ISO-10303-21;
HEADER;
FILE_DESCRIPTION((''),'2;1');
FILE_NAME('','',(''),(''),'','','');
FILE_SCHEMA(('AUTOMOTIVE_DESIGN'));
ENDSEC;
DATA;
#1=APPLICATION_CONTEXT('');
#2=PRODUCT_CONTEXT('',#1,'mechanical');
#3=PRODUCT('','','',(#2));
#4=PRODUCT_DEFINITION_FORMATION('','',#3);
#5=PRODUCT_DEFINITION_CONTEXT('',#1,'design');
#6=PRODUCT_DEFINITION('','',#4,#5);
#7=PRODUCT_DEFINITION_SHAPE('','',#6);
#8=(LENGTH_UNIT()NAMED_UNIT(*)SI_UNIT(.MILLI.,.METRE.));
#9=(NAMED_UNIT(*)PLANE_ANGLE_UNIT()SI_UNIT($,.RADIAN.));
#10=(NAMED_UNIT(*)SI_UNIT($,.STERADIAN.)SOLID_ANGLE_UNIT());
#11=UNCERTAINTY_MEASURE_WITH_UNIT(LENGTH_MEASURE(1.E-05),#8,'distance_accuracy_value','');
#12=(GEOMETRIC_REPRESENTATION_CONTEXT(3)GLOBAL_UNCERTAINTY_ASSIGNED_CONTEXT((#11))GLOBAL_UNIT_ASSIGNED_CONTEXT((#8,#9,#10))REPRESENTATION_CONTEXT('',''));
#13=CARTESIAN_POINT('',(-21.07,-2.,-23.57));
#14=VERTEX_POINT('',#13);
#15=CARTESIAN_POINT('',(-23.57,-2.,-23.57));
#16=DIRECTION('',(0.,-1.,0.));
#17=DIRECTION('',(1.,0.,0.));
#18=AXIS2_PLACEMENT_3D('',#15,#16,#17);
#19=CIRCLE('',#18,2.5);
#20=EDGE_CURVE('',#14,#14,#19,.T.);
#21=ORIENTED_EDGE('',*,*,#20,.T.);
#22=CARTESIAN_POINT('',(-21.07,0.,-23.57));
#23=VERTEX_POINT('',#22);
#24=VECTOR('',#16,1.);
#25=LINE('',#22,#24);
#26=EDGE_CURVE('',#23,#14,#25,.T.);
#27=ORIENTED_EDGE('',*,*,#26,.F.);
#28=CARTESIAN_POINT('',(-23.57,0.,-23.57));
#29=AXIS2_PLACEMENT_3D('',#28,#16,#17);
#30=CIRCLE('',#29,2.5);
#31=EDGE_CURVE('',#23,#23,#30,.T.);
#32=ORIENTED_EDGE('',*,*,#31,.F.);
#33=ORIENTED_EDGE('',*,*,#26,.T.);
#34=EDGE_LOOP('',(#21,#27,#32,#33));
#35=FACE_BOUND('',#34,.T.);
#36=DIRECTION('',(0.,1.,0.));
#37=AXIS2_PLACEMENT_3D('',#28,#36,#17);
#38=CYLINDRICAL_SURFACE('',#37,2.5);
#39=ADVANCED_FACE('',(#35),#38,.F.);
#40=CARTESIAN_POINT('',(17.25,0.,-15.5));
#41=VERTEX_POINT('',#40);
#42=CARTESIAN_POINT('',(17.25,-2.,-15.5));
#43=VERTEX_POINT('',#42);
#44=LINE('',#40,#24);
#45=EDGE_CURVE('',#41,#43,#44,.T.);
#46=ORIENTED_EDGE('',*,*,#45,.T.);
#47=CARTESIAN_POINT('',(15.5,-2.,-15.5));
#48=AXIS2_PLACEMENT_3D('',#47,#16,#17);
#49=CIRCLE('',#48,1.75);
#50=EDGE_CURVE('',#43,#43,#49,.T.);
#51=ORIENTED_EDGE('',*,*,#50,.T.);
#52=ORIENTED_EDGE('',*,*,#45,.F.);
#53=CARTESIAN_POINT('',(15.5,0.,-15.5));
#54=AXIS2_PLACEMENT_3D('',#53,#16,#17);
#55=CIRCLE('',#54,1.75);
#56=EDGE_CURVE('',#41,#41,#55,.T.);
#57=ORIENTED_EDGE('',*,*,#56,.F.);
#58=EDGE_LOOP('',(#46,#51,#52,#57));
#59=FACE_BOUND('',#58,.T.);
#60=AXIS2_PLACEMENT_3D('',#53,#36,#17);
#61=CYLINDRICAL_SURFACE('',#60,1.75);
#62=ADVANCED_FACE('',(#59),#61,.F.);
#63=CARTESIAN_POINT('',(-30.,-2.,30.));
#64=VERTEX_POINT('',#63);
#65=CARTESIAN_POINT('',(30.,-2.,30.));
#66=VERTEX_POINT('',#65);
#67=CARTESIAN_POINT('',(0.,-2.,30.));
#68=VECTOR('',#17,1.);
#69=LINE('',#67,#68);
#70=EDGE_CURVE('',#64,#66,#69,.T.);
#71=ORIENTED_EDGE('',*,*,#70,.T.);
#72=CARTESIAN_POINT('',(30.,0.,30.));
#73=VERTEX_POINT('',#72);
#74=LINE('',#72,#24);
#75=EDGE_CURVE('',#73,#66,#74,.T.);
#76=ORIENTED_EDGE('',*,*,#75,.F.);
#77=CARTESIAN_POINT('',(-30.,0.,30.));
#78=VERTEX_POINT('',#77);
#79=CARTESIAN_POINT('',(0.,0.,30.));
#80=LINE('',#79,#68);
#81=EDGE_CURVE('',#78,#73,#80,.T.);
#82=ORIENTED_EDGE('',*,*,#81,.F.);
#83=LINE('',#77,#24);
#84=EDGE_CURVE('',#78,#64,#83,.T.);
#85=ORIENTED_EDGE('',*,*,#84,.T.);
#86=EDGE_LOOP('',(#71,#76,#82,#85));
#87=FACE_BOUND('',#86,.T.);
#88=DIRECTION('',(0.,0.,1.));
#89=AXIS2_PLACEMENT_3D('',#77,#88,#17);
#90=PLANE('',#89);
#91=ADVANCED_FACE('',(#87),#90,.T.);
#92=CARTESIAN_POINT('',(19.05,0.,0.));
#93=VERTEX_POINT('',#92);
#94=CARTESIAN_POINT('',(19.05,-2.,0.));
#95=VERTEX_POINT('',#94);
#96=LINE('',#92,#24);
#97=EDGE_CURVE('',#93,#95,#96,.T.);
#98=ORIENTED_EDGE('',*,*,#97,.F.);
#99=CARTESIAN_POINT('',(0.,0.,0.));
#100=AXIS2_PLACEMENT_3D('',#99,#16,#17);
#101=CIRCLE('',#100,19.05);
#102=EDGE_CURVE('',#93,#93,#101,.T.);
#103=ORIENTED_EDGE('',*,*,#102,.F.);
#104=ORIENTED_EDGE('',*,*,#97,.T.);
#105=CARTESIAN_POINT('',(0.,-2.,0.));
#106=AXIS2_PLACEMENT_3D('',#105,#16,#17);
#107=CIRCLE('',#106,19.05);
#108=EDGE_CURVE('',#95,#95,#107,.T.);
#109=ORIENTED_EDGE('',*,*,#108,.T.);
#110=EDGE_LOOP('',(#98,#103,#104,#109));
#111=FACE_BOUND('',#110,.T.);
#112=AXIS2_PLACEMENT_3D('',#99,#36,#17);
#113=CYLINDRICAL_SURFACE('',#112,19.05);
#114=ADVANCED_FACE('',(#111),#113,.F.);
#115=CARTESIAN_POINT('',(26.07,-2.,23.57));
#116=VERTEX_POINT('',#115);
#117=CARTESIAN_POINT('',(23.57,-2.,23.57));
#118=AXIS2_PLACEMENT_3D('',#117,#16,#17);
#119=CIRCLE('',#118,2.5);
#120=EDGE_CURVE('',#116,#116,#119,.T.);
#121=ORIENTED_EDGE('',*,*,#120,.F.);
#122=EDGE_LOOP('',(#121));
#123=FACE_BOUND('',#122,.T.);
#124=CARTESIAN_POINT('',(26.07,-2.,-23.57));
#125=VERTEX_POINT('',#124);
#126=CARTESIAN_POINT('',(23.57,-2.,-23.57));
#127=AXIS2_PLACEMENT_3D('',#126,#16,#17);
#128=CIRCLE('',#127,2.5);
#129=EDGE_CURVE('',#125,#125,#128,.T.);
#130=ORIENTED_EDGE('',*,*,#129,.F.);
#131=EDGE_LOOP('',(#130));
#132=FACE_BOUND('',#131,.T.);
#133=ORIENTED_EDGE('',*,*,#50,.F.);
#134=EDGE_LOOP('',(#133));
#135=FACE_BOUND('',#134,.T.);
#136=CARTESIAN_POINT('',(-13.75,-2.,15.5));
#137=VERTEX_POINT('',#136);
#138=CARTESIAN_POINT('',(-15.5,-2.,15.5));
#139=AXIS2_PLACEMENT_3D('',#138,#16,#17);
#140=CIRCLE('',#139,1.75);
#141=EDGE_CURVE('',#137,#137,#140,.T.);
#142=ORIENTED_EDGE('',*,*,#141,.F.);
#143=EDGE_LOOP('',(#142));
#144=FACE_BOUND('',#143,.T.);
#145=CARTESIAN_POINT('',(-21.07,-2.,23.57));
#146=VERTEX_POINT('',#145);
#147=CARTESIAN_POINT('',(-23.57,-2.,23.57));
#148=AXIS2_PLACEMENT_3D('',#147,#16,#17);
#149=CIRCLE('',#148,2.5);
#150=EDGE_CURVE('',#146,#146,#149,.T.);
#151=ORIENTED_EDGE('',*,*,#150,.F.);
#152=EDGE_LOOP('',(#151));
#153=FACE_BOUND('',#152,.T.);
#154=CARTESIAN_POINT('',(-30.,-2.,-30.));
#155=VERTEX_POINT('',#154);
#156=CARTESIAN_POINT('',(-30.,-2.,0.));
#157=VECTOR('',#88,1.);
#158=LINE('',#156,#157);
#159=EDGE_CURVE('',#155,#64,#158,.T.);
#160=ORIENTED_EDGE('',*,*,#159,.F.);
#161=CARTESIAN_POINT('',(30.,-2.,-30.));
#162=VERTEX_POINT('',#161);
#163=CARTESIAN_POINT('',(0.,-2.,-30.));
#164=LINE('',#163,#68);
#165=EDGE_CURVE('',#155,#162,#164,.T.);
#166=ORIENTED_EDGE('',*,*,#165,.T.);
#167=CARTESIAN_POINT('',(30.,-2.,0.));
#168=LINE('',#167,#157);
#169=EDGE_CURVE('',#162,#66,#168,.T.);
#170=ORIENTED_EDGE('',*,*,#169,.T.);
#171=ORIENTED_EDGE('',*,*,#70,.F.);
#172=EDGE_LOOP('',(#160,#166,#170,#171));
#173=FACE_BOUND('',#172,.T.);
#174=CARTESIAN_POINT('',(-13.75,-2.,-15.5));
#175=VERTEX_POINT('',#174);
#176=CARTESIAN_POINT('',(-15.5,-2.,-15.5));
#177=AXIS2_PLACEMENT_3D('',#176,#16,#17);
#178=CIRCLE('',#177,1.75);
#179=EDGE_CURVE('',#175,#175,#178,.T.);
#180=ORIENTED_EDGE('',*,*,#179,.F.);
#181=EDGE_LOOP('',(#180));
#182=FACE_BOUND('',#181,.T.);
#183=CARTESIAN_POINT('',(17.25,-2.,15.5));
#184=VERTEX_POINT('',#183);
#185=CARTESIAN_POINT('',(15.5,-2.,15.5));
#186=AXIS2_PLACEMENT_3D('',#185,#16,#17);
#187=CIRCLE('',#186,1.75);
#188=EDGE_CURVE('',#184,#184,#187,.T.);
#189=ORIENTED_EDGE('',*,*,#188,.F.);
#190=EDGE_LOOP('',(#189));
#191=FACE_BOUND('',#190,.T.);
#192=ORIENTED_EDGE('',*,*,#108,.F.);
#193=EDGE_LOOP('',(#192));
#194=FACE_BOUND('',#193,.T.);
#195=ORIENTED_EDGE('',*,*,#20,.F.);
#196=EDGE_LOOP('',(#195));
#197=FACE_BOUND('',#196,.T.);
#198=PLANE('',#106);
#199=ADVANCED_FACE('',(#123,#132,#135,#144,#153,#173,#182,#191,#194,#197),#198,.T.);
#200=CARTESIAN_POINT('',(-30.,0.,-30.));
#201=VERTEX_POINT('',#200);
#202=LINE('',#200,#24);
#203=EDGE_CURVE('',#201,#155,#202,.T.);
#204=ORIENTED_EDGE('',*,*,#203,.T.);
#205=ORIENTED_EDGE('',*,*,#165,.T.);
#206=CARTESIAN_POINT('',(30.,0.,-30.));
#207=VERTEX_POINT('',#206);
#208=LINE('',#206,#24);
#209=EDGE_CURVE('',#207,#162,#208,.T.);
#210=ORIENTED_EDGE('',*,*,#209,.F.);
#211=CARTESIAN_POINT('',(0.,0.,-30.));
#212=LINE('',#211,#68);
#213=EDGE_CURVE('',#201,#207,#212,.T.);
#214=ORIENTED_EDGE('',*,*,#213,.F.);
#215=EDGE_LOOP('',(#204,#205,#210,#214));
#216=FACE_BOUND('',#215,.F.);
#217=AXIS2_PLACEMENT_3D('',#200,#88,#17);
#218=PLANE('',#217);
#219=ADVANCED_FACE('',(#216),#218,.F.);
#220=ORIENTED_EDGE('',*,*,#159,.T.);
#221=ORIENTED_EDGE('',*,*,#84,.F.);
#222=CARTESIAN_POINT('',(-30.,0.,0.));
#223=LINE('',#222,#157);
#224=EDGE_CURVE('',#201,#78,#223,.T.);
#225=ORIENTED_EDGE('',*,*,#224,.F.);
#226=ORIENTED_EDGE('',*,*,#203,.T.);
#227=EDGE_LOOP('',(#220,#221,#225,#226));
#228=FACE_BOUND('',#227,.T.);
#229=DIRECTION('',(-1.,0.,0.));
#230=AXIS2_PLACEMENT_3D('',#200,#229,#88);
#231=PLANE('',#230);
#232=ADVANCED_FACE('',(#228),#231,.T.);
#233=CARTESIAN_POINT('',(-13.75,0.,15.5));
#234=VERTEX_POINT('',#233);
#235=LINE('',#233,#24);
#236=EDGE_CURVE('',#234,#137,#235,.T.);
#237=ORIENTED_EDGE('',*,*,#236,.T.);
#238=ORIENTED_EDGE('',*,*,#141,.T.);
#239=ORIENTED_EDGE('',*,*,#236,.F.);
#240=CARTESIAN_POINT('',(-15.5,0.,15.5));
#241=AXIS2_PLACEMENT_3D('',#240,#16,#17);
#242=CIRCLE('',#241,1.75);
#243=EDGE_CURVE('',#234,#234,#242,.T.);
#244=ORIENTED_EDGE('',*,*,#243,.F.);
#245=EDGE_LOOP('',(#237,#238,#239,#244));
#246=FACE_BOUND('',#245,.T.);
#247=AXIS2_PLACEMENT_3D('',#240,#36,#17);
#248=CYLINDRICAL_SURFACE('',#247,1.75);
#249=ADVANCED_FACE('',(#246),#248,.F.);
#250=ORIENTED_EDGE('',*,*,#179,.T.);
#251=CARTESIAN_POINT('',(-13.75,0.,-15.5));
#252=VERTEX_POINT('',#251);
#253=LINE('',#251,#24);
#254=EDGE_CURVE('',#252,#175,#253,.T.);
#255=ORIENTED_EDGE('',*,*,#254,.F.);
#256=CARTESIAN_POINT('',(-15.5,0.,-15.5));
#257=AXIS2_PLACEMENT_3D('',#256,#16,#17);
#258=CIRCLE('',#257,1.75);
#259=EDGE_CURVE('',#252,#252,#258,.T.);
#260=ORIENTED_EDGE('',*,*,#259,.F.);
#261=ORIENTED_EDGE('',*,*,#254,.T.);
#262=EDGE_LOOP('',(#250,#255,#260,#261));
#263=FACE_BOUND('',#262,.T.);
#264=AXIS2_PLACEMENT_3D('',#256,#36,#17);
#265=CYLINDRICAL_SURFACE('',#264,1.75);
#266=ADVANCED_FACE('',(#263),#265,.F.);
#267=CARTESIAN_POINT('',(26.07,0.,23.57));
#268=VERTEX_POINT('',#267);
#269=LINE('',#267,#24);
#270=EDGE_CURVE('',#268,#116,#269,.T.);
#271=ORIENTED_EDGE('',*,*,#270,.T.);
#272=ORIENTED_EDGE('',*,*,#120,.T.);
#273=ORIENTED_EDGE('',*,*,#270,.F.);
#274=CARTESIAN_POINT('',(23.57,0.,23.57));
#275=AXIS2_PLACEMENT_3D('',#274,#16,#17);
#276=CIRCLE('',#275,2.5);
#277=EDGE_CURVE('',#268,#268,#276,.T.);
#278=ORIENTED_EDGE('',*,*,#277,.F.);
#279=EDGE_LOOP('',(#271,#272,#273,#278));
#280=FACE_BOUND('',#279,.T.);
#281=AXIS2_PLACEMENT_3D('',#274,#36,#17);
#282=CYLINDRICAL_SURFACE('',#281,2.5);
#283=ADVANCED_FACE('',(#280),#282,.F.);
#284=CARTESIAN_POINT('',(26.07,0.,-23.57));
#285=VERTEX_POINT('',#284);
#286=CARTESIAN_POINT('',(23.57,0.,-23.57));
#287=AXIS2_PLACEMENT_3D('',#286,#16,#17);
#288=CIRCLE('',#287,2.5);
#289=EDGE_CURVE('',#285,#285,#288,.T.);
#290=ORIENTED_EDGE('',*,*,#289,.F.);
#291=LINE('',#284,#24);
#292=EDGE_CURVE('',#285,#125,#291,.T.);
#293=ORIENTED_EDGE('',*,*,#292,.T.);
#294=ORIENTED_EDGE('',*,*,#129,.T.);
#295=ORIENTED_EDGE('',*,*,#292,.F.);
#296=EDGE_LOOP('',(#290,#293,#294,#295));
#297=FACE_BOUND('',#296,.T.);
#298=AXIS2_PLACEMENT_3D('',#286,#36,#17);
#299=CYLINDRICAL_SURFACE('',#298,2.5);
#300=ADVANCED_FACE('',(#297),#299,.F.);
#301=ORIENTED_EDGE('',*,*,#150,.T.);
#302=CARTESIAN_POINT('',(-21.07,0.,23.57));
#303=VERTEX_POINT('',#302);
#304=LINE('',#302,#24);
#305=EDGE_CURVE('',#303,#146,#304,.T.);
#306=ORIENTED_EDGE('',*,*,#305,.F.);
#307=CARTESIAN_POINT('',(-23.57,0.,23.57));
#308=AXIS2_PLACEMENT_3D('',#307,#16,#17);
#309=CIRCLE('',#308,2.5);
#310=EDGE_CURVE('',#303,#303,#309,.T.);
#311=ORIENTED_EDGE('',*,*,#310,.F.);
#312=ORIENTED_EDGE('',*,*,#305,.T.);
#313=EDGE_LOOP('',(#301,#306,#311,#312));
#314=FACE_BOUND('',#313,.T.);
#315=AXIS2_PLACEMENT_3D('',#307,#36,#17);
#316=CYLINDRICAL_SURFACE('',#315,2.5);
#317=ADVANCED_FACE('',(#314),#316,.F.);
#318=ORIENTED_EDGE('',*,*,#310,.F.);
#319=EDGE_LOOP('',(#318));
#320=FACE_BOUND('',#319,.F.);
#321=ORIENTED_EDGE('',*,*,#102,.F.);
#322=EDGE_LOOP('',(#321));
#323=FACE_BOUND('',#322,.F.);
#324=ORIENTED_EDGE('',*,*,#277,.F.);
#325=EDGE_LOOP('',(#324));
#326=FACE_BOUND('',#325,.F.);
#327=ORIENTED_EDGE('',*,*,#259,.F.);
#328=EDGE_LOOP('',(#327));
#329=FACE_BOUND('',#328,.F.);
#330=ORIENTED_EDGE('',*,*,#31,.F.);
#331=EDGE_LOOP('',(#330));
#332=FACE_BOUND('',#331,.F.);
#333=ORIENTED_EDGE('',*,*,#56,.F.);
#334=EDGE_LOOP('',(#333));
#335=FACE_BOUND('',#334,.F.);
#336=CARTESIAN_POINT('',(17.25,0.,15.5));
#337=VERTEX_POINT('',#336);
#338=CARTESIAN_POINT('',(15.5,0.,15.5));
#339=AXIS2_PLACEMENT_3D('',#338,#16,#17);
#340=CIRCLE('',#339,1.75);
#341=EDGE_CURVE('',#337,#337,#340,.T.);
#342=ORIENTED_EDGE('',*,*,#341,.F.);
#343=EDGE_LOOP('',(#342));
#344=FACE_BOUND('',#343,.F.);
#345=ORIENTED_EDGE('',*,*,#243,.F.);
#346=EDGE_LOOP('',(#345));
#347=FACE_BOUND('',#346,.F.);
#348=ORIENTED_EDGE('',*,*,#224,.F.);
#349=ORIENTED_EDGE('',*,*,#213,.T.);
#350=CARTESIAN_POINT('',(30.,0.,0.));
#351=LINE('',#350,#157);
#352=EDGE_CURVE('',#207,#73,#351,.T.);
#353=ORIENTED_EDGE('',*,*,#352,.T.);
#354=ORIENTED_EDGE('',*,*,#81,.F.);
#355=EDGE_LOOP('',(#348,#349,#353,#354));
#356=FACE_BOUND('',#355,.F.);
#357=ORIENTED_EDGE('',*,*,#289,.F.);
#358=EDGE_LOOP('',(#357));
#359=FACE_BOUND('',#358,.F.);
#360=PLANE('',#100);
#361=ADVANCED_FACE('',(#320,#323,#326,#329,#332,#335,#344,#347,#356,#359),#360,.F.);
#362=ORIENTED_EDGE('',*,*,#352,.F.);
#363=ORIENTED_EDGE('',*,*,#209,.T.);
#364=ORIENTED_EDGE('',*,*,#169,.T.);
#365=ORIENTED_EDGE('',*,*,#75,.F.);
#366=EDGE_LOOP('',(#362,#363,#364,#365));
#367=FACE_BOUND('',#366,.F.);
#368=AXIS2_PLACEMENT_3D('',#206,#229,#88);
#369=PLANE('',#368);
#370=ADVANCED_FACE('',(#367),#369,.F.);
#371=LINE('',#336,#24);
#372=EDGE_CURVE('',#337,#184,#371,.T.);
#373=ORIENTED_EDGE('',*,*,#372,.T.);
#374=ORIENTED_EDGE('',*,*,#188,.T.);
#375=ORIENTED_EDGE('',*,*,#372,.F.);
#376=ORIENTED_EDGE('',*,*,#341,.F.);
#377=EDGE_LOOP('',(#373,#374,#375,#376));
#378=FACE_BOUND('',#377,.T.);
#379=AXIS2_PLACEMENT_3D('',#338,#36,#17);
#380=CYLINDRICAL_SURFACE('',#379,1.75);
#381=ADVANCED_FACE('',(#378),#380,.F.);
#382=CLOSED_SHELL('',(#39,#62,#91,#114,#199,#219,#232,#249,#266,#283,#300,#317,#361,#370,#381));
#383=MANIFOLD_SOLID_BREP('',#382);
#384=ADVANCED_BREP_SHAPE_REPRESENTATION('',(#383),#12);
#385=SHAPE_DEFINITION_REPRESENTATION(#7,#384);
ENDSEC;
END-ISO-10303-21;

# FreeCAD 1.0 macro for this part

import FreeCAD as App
import Part
import Sketcher

V = App.Vector
Q = App.Units.Quantity

doc = App.newDocument("Part")
body = doc.addObject("PartDesign::Body", "Body")

sketch1 = body.newObject("Sketcher::SketchObject", "Sketch")
sketch1.AttachmentSupport = (doc.getObject("XZ_Plane"), [""])
sketch1.MapMode = "FlatFace"
sketch1.addGeometry(Part.LineSegment(V(-30, 30, 0), V(-30, -30, 0)), False)
sketch1.addGeometry(Part.LineSegment(V(-30, -30, 0), V(30, -30, 0)), False)
sketch1.addGeometry(Part.LineSegment(V(30, -30, 0), V(30, 30, 0)), False)
sketch1.addGeometry(Part.LineSegment(V(30, 30, 0), V(-30, 30, 0)), False)
sketch1.addGeometry(Part.Circle(V(-23.57, -23.57, 0), V(0, 0, 1), 2.5), False)
sketch1.addGeometry(Part.Circle(V(-15.5, -15.5, 0), V(0, 0, 1), 1.75), False)
sketch1.addGeometry(Part.Circle(V(23.57, -23.57, 0), V(0, 0, 1), 2.5), False)
sketch1.addGeometry(Part.Circle(V(15.5, -15.5, 0), V(0, 0, 1), 1.75), False)
sketch1.addGeometry(Part.Circle(V(-15.5, 15.5, 0), V(0, 0, 1), 1.75), False)
sketch1.addGeometry(Part.Circle(V(-23.57, 23.57, 0), V(0, 0, 1), 2.5), False)
sketch1.addGeometry(Part.Circle(V(0, 0, 0), V(0, 0, 1), 19.05), False)
sketch1.addGeometry(Part.Circle(V(15.5, 15.5, 0), V(0, 0, 1), 1.75), False)
sketch1.addGeometry(Part.Circle(V(23.57, 23.57, 0), V(0, 0, 1), 2.5), False)
sketch1.addConstraint(Sketcher.Constraint("Coincident", 0, 2, 1, 1))
sketch1.addConstraint(Sketcher.Constraint("Coincident", 1, 2, 2, 1))
sketch1.addConstraint(Sketcher.Constraint("Coincident", 2, 2, 3, 1))
sketch1.addConstraint(Sketcher.Constraint("Coincident", 3, 2, 0, 1))
sketch1.addConstraint(Sketcher.Constraint("Vertical", 0))
sketch1.addConstraint(Sketcher.Constraint("Horizontal", 1))
sketch1.addConstraint(Sketcher.Constraint("Vertical", 2))
sketch1.addConstraint(Sketcher.Constraint("Horizontal", 3))
sketch1.addConstraint(Sketcher.Constraint("Coincident", 10, 3, -1, 1))
sketch1.addConstraint(Sketcher.Constraint("Equal", 4, 6))
sketch1.addConstraint(Sketcher.Constraint("Equal", 5, 7))
sketch1.addConstraint(Sketcher.Constraint("Equal", 7, 8))
sketch1.addConstraint(Sketcher.Constraint("Equal", 6, 9))
sketch1.addConstraint(Sketcher.Constraint("Equal", 8, 11))
sketch1.addConstraint(Sketcher.Constraint("Equal", 9, 12))
sketch1.addConstraint(Sketcher.Constraint("Symmetric", 7, 3, 8, 3, -1, 1))
sketch1.addConstraint(Sketcher.Constraint("Symmetric", 6, 3, 9, 3, -1, 1))
sketch1.addConstraint(Sketcher.Constraint("Symmetric", 5, 3, 11, 3, -1, 1))
sketch1.addConstraint(Sketcher.Constraint("Symmetric", 4, 3, 12, 3, -1, 1))
sketch1.addConstraint(Sketcher.Constraint("Symmetric", 0, 2, 2, 2, -1, 1))
sketch1.addConstraint(Sketcher.Constraint("Symmetric", 4, 3, 6, 3, -2))
sketch1.addConstraint(Sketcher.Constraint("Symmetric", 5, 3, 7, 3, -2))
sketch1.addConstraint(Sketcher.Constraint("Equal", 3, 0))
sketch1.addConstraint(Sketcher.Constraint("Diameter", 4, Q("5 mm")))
sketch1.addConstraint(Sketcher.Constraint("Diameter", 5, Q("3.5 mm")))
sketch1.addConstraint(Sketcher.Constraint("Diameter", 10, Q("38.1 mm")))
sketch1.addConstraint(Sketcher.Constraint("DistanceX", 1, 1, 1, 2, Q("60 mm")))
sketch1.addConstraint(Sketcher.Constraint("DistanceX", 5, 3, 7, 3, Q("31 mm")))
sketch1.addConstraint(Sketcher.Constraint("DistanceY", 5, 3, 8, 3, Q("31 mm")))
sketch1.addConstraint(Sketcher.Constraint("DistanceX", 4, 3, -1, 1, Q("23.57 mm")))
sketch1.addConstraint(Sketcher.Constraint("DistanceY", 4, 3, -1, 1, Q("23.57 mm")))
pad1 = body.newObject("PartDesign::Pad", "Pad")
pad1.Profile = sketch1
pad1.Length = 2

doc.recompute()
